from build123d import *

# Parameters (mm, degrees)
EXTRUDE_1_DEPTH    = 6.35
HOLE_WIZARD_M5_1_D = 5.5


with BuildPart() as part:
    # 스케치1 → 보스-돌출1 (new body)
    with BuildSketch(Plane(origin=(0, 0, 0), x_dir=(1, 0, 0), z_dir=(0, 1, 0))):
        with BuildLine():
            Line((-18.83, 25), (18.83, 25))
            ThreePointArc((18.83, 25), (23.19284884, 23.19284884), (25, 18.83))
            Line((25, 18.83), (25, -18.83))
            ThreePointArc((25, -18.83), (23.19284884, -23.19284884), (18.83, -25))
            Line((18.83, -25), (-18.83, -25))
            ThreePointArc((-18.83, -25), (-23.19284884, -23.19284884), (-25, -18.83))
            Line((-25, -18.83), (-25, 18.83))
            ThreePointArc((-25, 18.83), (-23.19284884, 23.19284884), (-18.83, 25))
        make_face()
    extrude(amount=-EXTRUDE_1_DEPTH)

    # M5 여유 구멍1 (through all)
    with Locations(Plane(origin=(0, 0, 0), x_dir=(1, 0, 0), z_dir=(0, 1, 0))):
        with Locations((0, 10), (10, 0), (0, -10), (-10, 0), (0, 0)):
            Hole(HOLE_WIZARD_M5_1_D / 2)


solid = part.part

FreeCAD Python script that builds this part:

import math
import FreeCAD as App
import Part
import Sketcher

V = App.Vector
Q = App.Units.Quantity

doc = App.newDocument("Part")
params = doc.addObject("Spreadsheet::Sheet", "Params")
for row, (alias, value) in enumerate([
    ("sketch1_radius", "6.17 mm"),
    ("pad1_length", "6.35 mm"),
    ("sketch2_diameter", "5.5 mm"),
    ("hole_diameter", "5.5 mm"),
], start=1):
    params.set(f"A{row}", alias)
    params.set(f"B{row}", "=" + value)
    params.setAlias(f"B{row}", alias)

body = doc.addObject("PartDesign::Body", "Body")

# Sketch on XZ plane
sketch1 = body.newObject("Sketcher::SketchObject", "Sketch")
sketch1.AttachmentSupport = (doc.getObject("XZ_Plane"), [""])
sketch1.MapMode = "FlatFace"
sketch1.addGeometry([
    Part.LineSegment(V(19, -25, 0), V(-19, -25, 0)),  # 0
    Part.ArcOfCircle(Part.Circle(V(-19, -19, 0), V(0, 0, 1), 6), math.radians(180), math.radians(270)),  # 1
    Part.LineSegment(V(-25, -19, 0), V(-25, 19, 0)),  # 2
    Part.ArcOfCircle(Part.Circle(V(-19, 19, 0), V(0, 0, 1), 6), math.radians(90), math.radians(180)),  # 3
    Part.LineSegment(V(-19, 25, 0), V(19, 25, 0)),  # 4
    Part.ArcOfCircle(Part.Circle(V(19, 19, 0), V(0, 0, 1), 6), math.radians(0), math.radians(90)),  # 5
    Part.LineSegment(V(25, 19, 0), V(25, -19, 0)),  # 6
    Part.ArcOfCircle(Part.Circle(V(19, -19, 0), V(0, 0, 1), 6), math.radians(-90), math.radians(0)),  # 7
], False)
sketch1.addConstraint([
    Sketcher.Constraint("Tangent", 0, 2, 1, 2),
    Sketcher.Constraint("Tangent", 1, 1, 2, 1),
    Sketcher.Constraint("Tangent", 2, 2, 3, 2),
    Sketcher.Constraint("Tangent", 3, 1, 4, 1),
    Sketcher.Constraint("Tangent", 4, 2, 5, 2),
    Sketcher.Constraint("Tangent", 5, 1, 6, 1),
    Sketcher.Constraint("Tangent", 6, 2, 7, 2),
    Sketcher.Constraint("Tangent", 7, 1, 0, 1),
    Sketcher.Constraint("Horizontal", 0),
    Sketcher.Constraint("Vertical", 2),
    Sketcher.Constraint("Horizontal", 4),
    Sketcher.Constraint("Vertical", 6),
    Sketcher.Constraint("Equal", 1, 3),
    Sketcher.Constraint("Equal", 3, 5),
    Sketcher.Constraint("Equal", 5, 7),
    Sketcher.Constraint("Symmetric", 1, 3, 5, 3, -1, 1),
    Sketcher.Constraint("Equal", 4, 2),
    Sketcher.Constraint("Radius", 1, Q("6.17 mm")),
    Sketcher.Constraint("DistanceY", 0, 2, -1, 1, Q("25 mm")),
])
sketch1.setExpression("Constraints[17]", "Params.sketch1_radius")
pad1 = body.newObject("PartDesign::Pad", "Pad")
pad1.Profile = sketch1
pad1.setExpression("Length", "Params.pad1_length")

# Sketch on XZ plane
sketch2 = body.newObject("Sketcher::SketchObject", "Sketch001")
sketch2.AttachmentSupport = (doc.getObject("XZ_Plane"), [""])
sketch2.MapMode = "FlatFace"
sketch2.addGeometry([
    Part.Circle(V(0, -10, 0), V(0, 0, 1), 2.8),  # 0
    Part.Circle(V(10, 0, 0), V(0, 0, 1), 2.8),  # 1
    Part.Circle(V(0, 10, 0), V(0, 0, 1), 2.8),  # 2
    Part.Circle(V(-10, 0, 0), V(0, 0, 1), 2.8),  # 3
    Part.Circle(V(0, 0, 0), V(0, 0, 1), 2.8),  # 4
], False)
sketch2.addConstraint([
    Sketcher.Constraint("Coincident", 4, 3, -1, 1),
    Sketcher.Constraint("Equal", 0, 1),
    Sketcher.Constraint("Equal", 1, 2),
    Sketcher.Constraint("Equal", 2, 3),
    Sketcher.Constraint("Equal", 3, 4),
    Sketcher.Constraint("Symmetric", 0, 3, 2, 3, -1, 1),
    Sketcher.Constraint("Symmetric", 1, 3, 3, 3, -1, 1),
    Sketcher.Constraint("PointOnObject", 0, 3, -2),
    Sketcher.Constraint("PointOnObject", 1, 3, -1),
    Sketcher.Constraint("Diameter", 0, Q("5.5 mm")),
    Sketcher.Constraint("DistanceY", 0, 3, -1, 1, Q("10 mm")),
    Sketcher.Constraint("DistanceX", -1, 1, 1, 3, Q("10 mm")),
])
sketch2.setExpression("Constraints[9]", "Params.sketch2_diameter")
doc.recompute()
hole = body.newObject("PartDesign::Hole", "Hole")
hole.Profile = sketch2
hole.ThreadType = "None"
hole.setExpression("Diameter", "Params.hole_diameter")
hole.DepthType = "ThroughAll"
hole.Reversed = True

doc.recompute()
